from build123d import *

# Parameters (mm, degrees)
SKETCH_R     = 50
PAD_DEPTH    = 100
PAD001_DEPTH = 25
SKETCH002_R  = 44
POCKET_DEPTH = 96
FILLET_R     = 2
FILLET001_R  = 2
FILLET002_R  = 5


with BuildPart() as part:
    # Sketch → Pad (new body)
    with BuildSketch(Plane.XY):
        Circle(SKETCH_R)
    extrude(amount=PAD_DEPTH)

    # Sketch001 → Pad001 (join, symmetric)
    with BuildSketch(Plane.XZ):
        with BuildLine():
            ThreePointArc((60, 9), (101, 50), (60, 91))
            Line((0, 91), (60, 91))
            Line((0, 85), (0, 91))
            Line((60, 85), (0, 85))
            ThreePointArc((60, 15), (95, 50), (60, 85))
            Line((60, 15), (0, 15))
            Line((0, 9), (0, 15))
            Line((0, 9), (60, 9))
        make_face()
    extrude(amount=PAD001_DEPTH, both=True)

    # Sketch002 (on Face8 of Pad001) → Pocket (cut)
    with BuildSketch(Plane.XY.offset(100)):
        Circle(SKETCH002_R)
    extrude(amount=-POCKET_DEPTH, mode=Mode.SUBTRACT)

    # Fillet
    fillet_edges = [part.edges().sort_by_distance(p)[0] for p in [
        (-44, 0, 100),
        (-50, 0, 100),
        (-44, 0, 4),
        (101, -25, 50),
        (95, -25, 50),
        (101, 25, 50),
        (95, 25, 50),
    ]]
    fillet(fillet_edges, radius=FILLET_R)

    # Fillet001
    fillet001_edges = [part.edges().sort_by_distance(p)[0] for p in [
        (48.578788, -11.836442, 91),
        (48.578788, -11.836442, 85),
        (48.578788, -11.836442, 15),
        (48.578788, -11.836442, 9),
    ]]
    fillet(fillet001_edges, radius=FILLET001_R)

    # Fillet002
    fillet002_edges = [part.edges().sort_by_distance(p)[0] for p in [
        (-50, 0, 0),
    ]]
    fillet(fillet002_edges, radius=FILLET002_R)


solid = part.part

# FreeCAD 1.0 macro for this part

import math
import FreeCAD as App
import Part
import Sketcher

V = App.Vector
Q = App.Units.Quantity


def edges_at(feature, points):
    """Names of the edges that pass closest to the given points."""
    edges = feature.Shape.Edges
    near = lambda p: min(range(len(edges)), key=lambda i: edges[i].distToShape(Part.Vertex(*p))[0])
    return sorted({f"Edge{near(p) + 1}" for p in points})

doc = App.newDocument("Part")
body = doc.addObject("PartDesign::Body", "Body")

# Sketch on XY plane
sketch1 = doc.addObject("Sketcher::SketchObject", "Sketch")
body.addObject(sketch1)
sketch1.AttachmentSupport = (doc.XY_Plane, [""])
sketch1.MapMode = "FlatFace"
sketch1.addGeometry(Part.Circle(V(0, 0, 0), V(0, 0, 1), 50), False)
sketch1.addConstraint(Sketcher.Constraint("Coincident", 0, 3, -1, 1))
sketch1.addConstraint(Sketcher.Constraint("Diameter", 0, Q("100 mm")))
pad1 = doc.addObject("PartDesign::Pad", "Pad")
body.addObject(pad1)
pad1.Profile = sketch1
pad1.Length = 100

# Sketch on XZ plane
sketch2 = doc.addObject("Sketcher::SketchObject", "Sketch001")
body.addObject(sketch2)
sketch2.AttachmentSupport = (doc.XZ_Plane, [""])
sketch2.MapMode = "FlatFace"
sketch2.addGeometry(Part.ArcOfCircle(Part.Circle(V(60, 50, 0), V(0, 0, 1), 41), math.radians(-90), math.radians(90)), False)
sketch2.addGeometry(Part.LineSegment(V(60, 91, 0), V(0, 91, 0)), False)
sketch2.addGeometry(Part.LineSegment(V(0, 91, 0), V(0, 85, 0)), False)
sketch2.addGeometry(Part.LineSegment(V(0, 85, 0), V(60, 85, 0)), False)
sketch2.addGeometry(Part.ArcOfCircle(Part.Circle(V(60, 50, 0), V(0, 0, 1), 35), math.radians(-90), math.radians(90)), False)
sketch2.addGeometry(Part.LineSegment(V(60, 15, 0), V(0, 15, 0)), False)
sketch2.addGeometry(Part.LineSegment(V(0, 15, 0), V(0, 9, 0)), False)
sketch2.addGeometry(Part.LineSegment(V(0, 9, 0), V(60, 9, 0)), False)
sketch2.addConstraint(Sketcher.Constraint("Tangent", 0, 2, 1, 1))
sketch2.addConstraint(Sketcher.Constraint("Coincident", 1, 2, 2, 1))
sketch2.addConstraint(Sketcher.Constraint("Coincident", 2, 2, 3, 1))
sketch2.addConstraint(Sketcher.Constraint("Tangent", 3, 2, 4, 2))
sketch2.addConstraint(Sketcher.Constraint("Tangent", 4, 1, 5, 1))
sketch2.addConstraint(Sketcher.Constraint("Coincident", 5, 2, 6, 1))
sketch2.addConstraint(Sketcher.Constraint("Coincident", 6, 2, 7, 1))
sketch2.addConstraint(Sketcher.Constraint("Tangent", 7, 2, 0, 1))
sketch2.addConstraint(Sketcher.Constraint("Horizontal", 1))
sketch2.addConstraint(Sketcher.Constraint("Vertical", 2))
sketch2.addConstraint(Sketcher.Constraint("Horizontal", 3))
sketch2.addConstraint(Sketcher.Constraint("Horizontal", 5))
sketch2.addConstraint(Sketcher.Constraint("Vertical", 6))
sketch2.addConstraint(Sketcher.Constraint("Horizontal", 7))
sketch2.addConstraint(Sketcher.Constraint("Coincident", 4, 3, 0, 3))
sketch2.addConstraint(Sketcher.Constraint("PointOnObject", 1, 2, -2))
sketch2.addConstraint(Sketcher.Constraint("PointOnObject", 5, 2, -2))
sketch2.addConstraint(Sketcher.Constraint("Radius", 0, Q("41 mm")))
sketch2.addConstraint(Sketcher.Constraint("Radius", 4, Q("35 mm")))
sketch2.addConstraint(Sketcher.Constraint("DistanceX", 1, 2, 1, 1, Q("60 mm")))
sketch2.addConstraint(Sketcher.Constraint("DistanceY", -1, 1, 0, 3, Q("50 mm")))
pad2 = doc.addObject("PartDesign::Pad", "Pad001")
body.addObject(pad2)
pad2.Profile = sketch2
pad2.Length = 50
pad2.Midplane = True

# Sketch on XY plane
sketch3 = doc.addObject("Sketcher::SketchObject", "Sketch002")
body.addObject(sketch3)
sketch3.AttachmentSupport = (doc.XY_Plane, [""])
sketch3.MapMode = "FlatFace"
sketch3.AttachmentOffset = App.Placement(V(0, 0, 100), App.Rotation())
sketch3.addGeometry(Part.Circle(V(0, 0, 0), V(0, 0, 1), 44), False)
sketch3.addConstraint(Sketcher.Constraint("Coincident", 0, 3, -1, 1))
sketch3.addConstraint(Sketcher.Constraint("Diameter", 0, Q("88 mm")))
pocket1 = doc.addObject("PartDesign::Pocket", "Pocket")
body.addObject(pocket1)
pocket1.Profile = sketch3
pocket1.Length = 96
doc.recompute()

fillet = doc.addObject("PartDesign::Fillet", "Fillet")
body.addObject(fillet)
fillet.Base = (pocket1, edges_at(pocket1, [
    (-44, 0, 100),
    (-50, 0, 100),
    (-44, 0, 4),
    (101, -25, 50),
    (95, -25, 50),
    (101, 25, 50),
    (95, 25, 50),
]))
fillet.Radius = 2
doc.recompute()

fillet2 = doc.addObject("PartDesign::Fillet", "Fillet001")
body.addObject(fillet2)
fillet2.Base = (fillet, edges_at(fillet, [
    (48.579, -11.836, 91),
    (48.579, -11.836, 85),
    (48.579, -11.836, 15),
    (48.579, -11.836, 9),
]))
fillet2.Radius = 2
doc.recompute()

fillet3 = doc.addObject("PartDesign::Fillet", "Fillet002")
body.addObject(fillet3)
fillet3.Base = (fillet2, edges_at(fillet2, [(-50, 0, 0)]))
fillet3.Radius = 5

doc.recompute()
